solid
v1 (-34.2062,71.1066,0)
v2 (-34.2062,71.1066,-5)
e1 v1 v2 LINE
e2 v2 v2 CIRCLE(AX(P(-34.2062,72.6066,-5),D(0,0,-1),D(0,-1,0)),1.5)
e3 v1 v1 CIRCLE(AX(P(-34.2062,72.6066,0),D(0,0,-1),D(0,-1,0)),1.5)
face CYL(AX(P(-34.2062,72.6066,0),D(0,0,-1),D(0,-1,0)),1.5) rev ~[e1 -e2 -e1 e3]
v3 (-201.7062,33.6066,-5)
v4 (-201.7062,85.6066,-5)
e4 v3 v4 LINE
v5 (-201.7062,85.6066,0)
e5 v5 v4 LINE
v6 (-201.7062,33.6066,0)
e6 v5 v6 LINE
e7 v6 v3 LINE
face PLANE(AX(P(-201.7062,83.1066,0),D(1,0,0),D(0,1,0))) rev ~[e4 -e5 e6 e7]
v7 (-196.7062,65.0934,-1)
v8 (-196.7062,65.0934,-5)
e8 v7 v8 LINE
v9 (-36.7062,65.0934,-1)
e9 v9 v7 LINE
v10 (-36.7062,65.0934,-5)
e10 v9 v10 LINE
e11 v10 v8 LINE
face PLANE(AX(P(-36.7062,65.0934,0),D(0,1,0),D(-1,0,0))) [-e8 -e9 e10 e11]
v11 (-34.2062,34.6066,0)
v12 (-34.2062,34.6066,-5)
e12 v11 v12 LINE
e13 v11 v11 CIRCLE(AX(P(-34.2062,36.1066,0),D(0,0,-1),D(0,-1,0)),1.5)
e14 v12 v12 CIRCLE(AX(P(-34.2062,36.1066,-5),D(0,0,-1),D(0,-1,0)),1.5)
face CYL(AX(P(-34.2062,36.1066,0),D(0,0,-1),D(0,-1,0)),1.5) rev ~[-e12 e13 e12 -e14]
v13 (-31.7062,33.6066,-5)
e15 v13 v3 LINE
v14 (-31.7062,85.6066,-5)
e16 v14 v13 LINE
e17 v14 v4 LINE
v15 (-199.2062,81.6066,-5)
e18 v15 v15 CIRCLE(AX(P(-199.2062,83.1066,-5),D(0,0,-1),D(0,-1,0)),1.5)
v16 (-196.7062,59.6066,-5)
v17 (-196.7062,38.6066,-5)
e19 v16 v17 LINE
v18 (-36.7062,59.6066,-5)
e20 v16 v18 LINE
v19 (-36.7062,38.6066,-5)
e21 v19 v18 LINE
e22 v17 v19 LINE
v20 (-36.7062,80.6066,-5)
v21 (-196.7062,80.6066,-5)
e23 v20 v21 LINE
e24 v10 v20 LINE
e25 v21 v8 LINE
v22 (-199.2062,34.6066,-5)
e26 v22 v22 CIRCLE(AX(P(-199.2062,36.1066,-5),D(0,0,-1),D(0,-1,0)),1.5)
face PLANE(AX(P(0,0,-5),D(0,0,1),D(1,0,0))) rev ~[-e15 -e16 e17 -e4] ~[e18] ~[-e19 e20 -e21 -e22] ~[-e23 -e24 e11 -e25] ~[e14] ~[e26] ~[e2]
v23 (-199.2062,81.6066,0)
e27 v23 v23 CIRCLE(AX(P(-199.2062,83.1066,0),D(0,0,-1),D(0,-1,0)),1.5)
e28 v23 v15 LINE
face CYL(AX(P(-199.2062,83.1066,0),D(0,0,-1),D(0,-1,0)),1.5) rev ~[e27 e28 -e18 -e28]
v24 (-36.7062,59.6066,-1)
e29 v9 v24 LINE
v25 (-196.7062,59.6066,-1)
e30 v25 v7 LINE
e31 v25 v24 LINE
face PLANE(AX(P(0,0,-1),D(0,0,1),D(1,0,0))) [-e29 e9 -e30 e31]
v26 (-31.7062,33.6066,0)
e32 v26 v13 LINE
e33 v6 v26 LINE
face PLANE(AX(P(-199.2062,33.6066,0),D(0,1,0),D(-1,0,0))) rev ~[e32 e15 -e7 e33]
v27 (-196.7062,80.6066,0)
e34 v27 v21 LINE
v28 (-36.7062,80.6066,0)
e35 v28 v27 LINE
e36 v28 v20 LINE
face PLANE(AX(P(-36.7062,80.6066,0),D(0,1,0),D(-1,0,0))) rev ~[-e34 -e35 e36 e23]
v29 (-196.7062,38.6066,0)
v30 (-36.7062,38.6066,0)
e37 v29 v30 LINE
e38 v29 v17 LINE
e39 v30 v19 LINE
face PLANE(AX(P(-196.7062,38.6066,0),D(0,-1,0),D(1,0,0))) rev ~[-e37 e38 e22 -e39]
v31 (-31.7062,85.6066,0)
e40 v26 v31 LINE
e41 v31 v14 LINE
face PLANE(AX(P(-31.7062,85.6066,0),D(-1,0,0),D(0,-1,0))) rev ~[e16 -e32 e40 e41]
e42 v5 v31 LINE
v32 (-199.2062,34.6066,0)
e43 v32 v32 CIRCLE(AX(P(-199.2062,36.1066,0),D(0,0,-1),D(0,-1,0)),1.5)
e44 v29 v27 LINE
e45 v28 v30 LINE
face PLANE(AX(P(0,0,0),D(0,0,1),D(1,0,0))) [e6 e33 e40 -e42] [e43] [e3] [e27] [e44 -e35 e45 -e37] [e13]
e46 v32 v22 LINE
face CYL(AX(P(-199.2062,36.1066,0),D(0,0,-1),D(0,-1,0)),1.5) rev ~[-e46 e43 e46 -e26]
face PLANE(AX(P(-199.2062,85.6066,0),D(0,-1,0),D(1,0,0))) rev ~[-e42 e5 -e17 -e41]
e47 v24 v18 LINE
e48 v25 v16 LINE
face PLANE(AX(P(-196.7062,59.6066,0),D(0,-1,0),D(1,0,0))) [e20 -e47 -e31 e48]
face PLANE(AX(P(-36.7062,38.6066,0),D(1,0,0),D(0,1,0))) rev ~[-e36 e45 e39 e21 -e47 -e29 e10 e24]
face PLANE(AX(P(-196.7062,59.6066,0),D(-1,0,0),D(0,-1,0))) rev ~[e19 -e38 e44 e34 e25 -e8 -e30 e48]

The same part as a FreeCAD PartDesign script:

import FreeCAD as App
import Part
import Sketcher
from FreeCAD import Vector

doc = App.newDocument("Part")
body = doc.addObject("PartDesign::Body", "Body")

# Sketch on XY plane
sketch1 = body.newObject("Sketcher::SketchObject", "Sketch")
sketch1.AttachmentSupport = (doc.getObject("XY_Plane"), [""])
sketch1.MapMode = "FlatFace"
sketch1.addGeometry(Part.LineSegment(Vector(-202, 86, 0), Vector(-202, 34, 0)), False)
sketch1.addGeometry(Part.LineSegment(Vector(-202, 34, 0), Vector(-32, 34, 0)), False)
sketch1.addGeometry(Part.LineSegment(Vector(-32, 34, 0), Vector(-32, 86, 0)), False)
sketch1.addGeometry(Part.LineSegment(Vector(-32, 86, 0), Vector(-202, 86, 0)), False)
sketch1.addGeometry(Part.LineSegment(Vector(-197, 81, 0), Vector(-37, 81, 0)), False)
sketch1.addGeometry(Part.LineSegment(Vector(-37, 81, 0), Vector(-37, 65, 0)), False)
sketch1.addGeometry(Part.LineSegment(Vector(-37, 65, 0), Vector(-197, 65, 0)), False)
sketch1.addGeometry(Part.LineSegment(Vector(-197, 65, 0), Vector(-197, 81, 0)), False)
sketch1.addGeometry(Part.LineSegment(Vector(-197, 39, 0), Vector(-197, 60, 0)), False)
sketch1.addGeometry(Part.LineSegment(Vector(-197, 60, 0), Vector(-37, 60, 0)), False)
sketch1.addGeometry(Part.LineSegment(Vector(-37, 60, 0), Vector(-37, 39, 0)), False)
sketch1.addGeometry(Part.LineSegment(Vector(-37, 39, 0), Vector(-197, 39, 0)), False)
sketch1.addConstraint(Sketcher.Constraint("Coincident", 0, 2, 1, 1))
sketch1.addConstraint(Sketcher.Constraint("Coincident", 1, 2, 2, 1))
sketch1.addConstraint(Sketcher.Constraint("Coincident", 2, 2, 3, 1))
sketch1.addConstraint(Sketcher.Constraint("Coincident", 3, 2, 0, 1))
sketch1.addConstraint(Sketcher.Constraint("Coincident", 4, 2, 5, 1))
sketch1.addConstraint(Sketcher.Constraint("Coincident", 5, 2, 6, 1))
sketch1.addConstraint(Sketcher.Constraint("Coincident", 6, 2, 7, 1))
sketch1.addConstraint(Sketcher.Constraint("Coincident", 7, 2, 4, 1))
sketch1.addConstraint(Sketcher.Constraint("Coincident", 8, 2, 9, 1))
sketch1.addConstraint(Sketcher.Constraint("Coincident", 9, 2, 10, 1))
sketch1.addConstraint(Sketcher.Constraint("Coincident", 10, 2, 11, 1))
sketch1.addConstraint(Sketcher.Constraint("Coincident", 11, 2, 8, 1))
sketch1.addConstraint(Sketcher.Constraint("Vertical", 0))
sketch1.addConstraint(Sketcher.Constraint("Horizontal", 1))
sketch1.addConstraint(Sketcher.Constraint("Vertical", 2))
sketch1.addConstraint(Sketcher.Constraint("Horizontal", 3))
sketch1.addConstraint(Sketcher.Constraint("Horizontal", 4))
sketch1.addConstraint(Sketcher.Constraint("Vertical", 5))
sketch1.addConstraint(Sketcher.Constraint("Horizontal", 6))
sketch1.addConstraint(Sketcher.Constraint("Vertical", 7))
sketch1.addConstraint(Sketcher.Constraint("Vertical", 8))
sketch1.addConstraint(Sketcher.Constraint("Horizontal", 9))
sketch1.addConstraint(Sketcher.Constraint("Vertical", 10))
sketch1.addConstraint(Sketcher.Constraint("Horizontal", 11))
sketch1.addConstraint(Sketcher.Constraint("Vertical", 7, 2, 8, 2))
sketch1.addConstraint(Sketcher.Constraint("Vertical", 5, 2, 9, 2))
sketch1.addConstraint(Sketcher.Constraint("DistanceX", 1, 1, 1, 2, 170.0))
sketch1.addConstraint(Sketcher.Constraint("DistanceX", 4, 1, 4, 2, 160.0))
sketch1.addConstraint(Sketcher.Constraint("DistanceY", 0, 2, 0, 1, 52.0))
sketch1.addConstraint(Sketcher.Constraint("DistanceY", 8, 1, 8, 2, 21.0))
sketch1.addConstraint(Sketcher.Constraint("DistanceX", 4, 2, 2, 2, 5.0))
sketch1.addConstraint(Sketcher.Constraint("DistanceY", 4, 2, 2, 2, 5.0))
sketch1.addConstraint(Sketcher.Constraint("DistanceY", 8, 2, 7, 2, 21.0))
sketch1.addConstraint(Sketcher.Constraint("DistanceY", 5, 2, 5, 1, 15.5132))
sketch1.addConstraint(Sketcher.Constraint("DistanceX", 0, 2, -1, 1, 201.7062))
sketch1.addConstraint(Sketcher.Constraint("DistanceY", -1, 1, 0, 2, 33.6066))
pad1 = body.newObject("PartDesign::Pad", "Pad")
pad1.Profile = sketch1
pad1.Length = 5
pad1.Reversed = True

# Sketch on XY plane
sketch2 = body.newObject("Sketcher::SketchObject", "Sketch001")
sketch2.AttachmentSupport = (doc.getObject("XY_Plane"), [""])
sketch2.MapMode = "FlatFace"
sketch2.addGeometry(Part.Circle(Vector(-199.2, 83.1, 0), Vector(0, 0, 1), 1.5), False)
sketch2.addConstraint(Sketcher.Constraint("Diameter", 0, 3.0))
sketch2.addConstraint(Sketcher.Constraint("DistanceX", 0, 3, -1, 1, 199.2062))
sketch2.addConstraint(Sketcher.Constraint("DistanceY", -1, 1, 0, 3, 83.1066))
doc.recompute()
hole = body.newObject("PartDesign::Hole", "Hole")
hole.Profile = sketch2
hole.ThreadType = "None"
hole.Diameter = 3
hole.DepthType = "Dimension"
hole.Depth = 5
hole.DrillPoint = "Angled"
hole.DrillPointAngle = 118

# Sketch on XY plane
sketch3 = body.newObject("Sketcher::SketchObject", "Sketch002")
sketch3.AttachmentSupport = (doc.getObject("XY_Plane"), [""])
sketch3.MapMode = "FlatFace"
sketch3.addGeometry(Part.Circle(Vector(-199.2, 36.1, 0), Vector(0, 0, 1), 1.5), False)
sketch3.addConstraint(Sketcher.Constraint("Diameter", 0, 3.0))
sketch3.addConstraint(Sketcher.Constraint("DistanceX", 0, 3, -1, 1, 199.2062))
sketch3.addConstraint(Sketcher.Constraint("DistanceY", -1, 1, 0, 3, 36.1066))
doc.recompute()
hole2 = body.newObject("PartDesign::Hole", "Hole001")
hole2.Profile = sketch3
hole2.ThreadType = "None"
hole2.Diameter = 3
hole2.DepthType = "Dimension"
hole2.Depth = 5
hole2.DrillPoint = "Angled"
hole2.DrillPointAngle = 118

# Sketch on XY plane
sketch4 = body.newObject("Sketcher::SketchObject", "Sketch003")
sketch4.AttachmentSupport = (doc.getObject("XY_Plane"), [""])
sketch4.MapMode = "FlatFace"
sketch4.addGeometry(Part.Circle(Vector(-34.2, 36.1, 0), Vector(0, 0, 1), 1.5), False)
sketch4.addConstraint(Sketcher.Constraint("Diameter", 0, 3.0))
sketch4.addConstraint(Sketcher.Constraint("DistanceX", 0, 3, -1, 1, 34.2062))
sketch4.addConstraint(Sketcher.Constraint("DistanceY", -1, 1, 0, 3, 36.1066))
doc.recompute()
hole3 = body.newObject("PartDesign::Hole", "Hole002")
hole3.Profile = sketch4
hole3.ThreadType = "None"
hole3.Diameter = 3
hole3.DepthType = "Dimension"
hole3.Depth = 5
hole3.DrillPoint = "Angled"
hole3.DrillPointAngle = 118

# Sketch on XY plane
sketch5 = body.newObject("Sketcher::SketchObject", "Sketch004")
sketch5.AttachmentSupport = (doc.getObject("XY_Plane"), [""])
sketch5.MapMode = "FlatFace"
sketch5.addGeometry(Part.Circle(Vector(-34.2, 72.6, 0), Vector(0, 0, 1), 1.5), False)
sketch5.addConstraint(Sketcher.Constraint("Diameter", 0, 3.0))
sketch5.addConstraint(Sketcher.Constraint("DistanceX", 0, 3, -1, 1, 34.2062))
sketch5.addConstraint(Sketcher.Constraint("DistanceY", -1, 1, 0, 3, 72.6066))
doc.recompute()
hole4 = body.newObject("PartDesign::Hole", "Hole003")
hole4.Profile = sketch5
hole4.ThreadType = "None"
hole4.Diameter = 3
hole4.DepthType = "Dimension"
hole4.Depth = 5
hole4.DrillPoint = "Angled"
hole4.DrillPointAngle = 118

# Sketch on XY plane
sketch6 = body.newObject("Sketcher::SketchObject", "Sketch005")
sketch6.AttachmentSupport = (doc.getObject("XY_Plane"), [""])
sketch6.MapMode = "FlatFace"
sketch6.addGeometry(Part.LineSegment(Vector(-37, 65, 0), Vector(-197, 65, 0)), False)
sketch6.addGeometry(Part.LineSegment(Vector(-197, 65, 0), Vector(-197, 60, 0)), False)
sketch6.addGeometry(Part.LineSegment(Vector(-197, 60, 0), Vector(-37, 60, 0)), False)
sketch6.addGeometry(Part.LineSegment(Vector(-37, 60, 0), Vector(-37, 65, 0)), False)
sketch6.addConstraint(Sketcher.Constraint("Coincident", 0, 2, 1, 1))
sketch6.addConstraint(Sketcher.Constraint("Coincident", 1, 2, 2, 1))
sketch6.addConstraint(Sketcher.Constraint("Coincident", 2, 2, 3, 1))
sketch6.addConstraint(Sketcher.Constraint("Coincident", 3, 2, 0, 1))
sketch6.addConstraint(Sketcher.Constraint("Horizontal", 0))
sketch6.addConstraint(Sketcher.Constraint("Vertical", 1))
sketch6.addConstraint(Sketcher.Constraint("Horizontal", 2))
sketch6.addConstraint(Sketcher.Constraint("Vertical", 3))
sketch6.addConstraint(Sketcher.Constraint("DistanceX", 0, 2, 0, 1, 160.0))
sketch6.addConstraint(Sketcher.Constraint("DistanceY", 1, 2, 1, 1, 5.4868))
sketch6.addConstraint(Sketcher.Constraint("DistanceX", 0, 2, -1, 1, 196.7062))
sketch6.addConstraint(Sketcher.Constraint("DistanceY", -1, 1, 0, 2, 65.0934))
pocket1 = body.newObject("PartDesign::Pocket", "Pocket")
pocket1.Profile = sketch6
pocket1.Length = 1

doc.recompute()
